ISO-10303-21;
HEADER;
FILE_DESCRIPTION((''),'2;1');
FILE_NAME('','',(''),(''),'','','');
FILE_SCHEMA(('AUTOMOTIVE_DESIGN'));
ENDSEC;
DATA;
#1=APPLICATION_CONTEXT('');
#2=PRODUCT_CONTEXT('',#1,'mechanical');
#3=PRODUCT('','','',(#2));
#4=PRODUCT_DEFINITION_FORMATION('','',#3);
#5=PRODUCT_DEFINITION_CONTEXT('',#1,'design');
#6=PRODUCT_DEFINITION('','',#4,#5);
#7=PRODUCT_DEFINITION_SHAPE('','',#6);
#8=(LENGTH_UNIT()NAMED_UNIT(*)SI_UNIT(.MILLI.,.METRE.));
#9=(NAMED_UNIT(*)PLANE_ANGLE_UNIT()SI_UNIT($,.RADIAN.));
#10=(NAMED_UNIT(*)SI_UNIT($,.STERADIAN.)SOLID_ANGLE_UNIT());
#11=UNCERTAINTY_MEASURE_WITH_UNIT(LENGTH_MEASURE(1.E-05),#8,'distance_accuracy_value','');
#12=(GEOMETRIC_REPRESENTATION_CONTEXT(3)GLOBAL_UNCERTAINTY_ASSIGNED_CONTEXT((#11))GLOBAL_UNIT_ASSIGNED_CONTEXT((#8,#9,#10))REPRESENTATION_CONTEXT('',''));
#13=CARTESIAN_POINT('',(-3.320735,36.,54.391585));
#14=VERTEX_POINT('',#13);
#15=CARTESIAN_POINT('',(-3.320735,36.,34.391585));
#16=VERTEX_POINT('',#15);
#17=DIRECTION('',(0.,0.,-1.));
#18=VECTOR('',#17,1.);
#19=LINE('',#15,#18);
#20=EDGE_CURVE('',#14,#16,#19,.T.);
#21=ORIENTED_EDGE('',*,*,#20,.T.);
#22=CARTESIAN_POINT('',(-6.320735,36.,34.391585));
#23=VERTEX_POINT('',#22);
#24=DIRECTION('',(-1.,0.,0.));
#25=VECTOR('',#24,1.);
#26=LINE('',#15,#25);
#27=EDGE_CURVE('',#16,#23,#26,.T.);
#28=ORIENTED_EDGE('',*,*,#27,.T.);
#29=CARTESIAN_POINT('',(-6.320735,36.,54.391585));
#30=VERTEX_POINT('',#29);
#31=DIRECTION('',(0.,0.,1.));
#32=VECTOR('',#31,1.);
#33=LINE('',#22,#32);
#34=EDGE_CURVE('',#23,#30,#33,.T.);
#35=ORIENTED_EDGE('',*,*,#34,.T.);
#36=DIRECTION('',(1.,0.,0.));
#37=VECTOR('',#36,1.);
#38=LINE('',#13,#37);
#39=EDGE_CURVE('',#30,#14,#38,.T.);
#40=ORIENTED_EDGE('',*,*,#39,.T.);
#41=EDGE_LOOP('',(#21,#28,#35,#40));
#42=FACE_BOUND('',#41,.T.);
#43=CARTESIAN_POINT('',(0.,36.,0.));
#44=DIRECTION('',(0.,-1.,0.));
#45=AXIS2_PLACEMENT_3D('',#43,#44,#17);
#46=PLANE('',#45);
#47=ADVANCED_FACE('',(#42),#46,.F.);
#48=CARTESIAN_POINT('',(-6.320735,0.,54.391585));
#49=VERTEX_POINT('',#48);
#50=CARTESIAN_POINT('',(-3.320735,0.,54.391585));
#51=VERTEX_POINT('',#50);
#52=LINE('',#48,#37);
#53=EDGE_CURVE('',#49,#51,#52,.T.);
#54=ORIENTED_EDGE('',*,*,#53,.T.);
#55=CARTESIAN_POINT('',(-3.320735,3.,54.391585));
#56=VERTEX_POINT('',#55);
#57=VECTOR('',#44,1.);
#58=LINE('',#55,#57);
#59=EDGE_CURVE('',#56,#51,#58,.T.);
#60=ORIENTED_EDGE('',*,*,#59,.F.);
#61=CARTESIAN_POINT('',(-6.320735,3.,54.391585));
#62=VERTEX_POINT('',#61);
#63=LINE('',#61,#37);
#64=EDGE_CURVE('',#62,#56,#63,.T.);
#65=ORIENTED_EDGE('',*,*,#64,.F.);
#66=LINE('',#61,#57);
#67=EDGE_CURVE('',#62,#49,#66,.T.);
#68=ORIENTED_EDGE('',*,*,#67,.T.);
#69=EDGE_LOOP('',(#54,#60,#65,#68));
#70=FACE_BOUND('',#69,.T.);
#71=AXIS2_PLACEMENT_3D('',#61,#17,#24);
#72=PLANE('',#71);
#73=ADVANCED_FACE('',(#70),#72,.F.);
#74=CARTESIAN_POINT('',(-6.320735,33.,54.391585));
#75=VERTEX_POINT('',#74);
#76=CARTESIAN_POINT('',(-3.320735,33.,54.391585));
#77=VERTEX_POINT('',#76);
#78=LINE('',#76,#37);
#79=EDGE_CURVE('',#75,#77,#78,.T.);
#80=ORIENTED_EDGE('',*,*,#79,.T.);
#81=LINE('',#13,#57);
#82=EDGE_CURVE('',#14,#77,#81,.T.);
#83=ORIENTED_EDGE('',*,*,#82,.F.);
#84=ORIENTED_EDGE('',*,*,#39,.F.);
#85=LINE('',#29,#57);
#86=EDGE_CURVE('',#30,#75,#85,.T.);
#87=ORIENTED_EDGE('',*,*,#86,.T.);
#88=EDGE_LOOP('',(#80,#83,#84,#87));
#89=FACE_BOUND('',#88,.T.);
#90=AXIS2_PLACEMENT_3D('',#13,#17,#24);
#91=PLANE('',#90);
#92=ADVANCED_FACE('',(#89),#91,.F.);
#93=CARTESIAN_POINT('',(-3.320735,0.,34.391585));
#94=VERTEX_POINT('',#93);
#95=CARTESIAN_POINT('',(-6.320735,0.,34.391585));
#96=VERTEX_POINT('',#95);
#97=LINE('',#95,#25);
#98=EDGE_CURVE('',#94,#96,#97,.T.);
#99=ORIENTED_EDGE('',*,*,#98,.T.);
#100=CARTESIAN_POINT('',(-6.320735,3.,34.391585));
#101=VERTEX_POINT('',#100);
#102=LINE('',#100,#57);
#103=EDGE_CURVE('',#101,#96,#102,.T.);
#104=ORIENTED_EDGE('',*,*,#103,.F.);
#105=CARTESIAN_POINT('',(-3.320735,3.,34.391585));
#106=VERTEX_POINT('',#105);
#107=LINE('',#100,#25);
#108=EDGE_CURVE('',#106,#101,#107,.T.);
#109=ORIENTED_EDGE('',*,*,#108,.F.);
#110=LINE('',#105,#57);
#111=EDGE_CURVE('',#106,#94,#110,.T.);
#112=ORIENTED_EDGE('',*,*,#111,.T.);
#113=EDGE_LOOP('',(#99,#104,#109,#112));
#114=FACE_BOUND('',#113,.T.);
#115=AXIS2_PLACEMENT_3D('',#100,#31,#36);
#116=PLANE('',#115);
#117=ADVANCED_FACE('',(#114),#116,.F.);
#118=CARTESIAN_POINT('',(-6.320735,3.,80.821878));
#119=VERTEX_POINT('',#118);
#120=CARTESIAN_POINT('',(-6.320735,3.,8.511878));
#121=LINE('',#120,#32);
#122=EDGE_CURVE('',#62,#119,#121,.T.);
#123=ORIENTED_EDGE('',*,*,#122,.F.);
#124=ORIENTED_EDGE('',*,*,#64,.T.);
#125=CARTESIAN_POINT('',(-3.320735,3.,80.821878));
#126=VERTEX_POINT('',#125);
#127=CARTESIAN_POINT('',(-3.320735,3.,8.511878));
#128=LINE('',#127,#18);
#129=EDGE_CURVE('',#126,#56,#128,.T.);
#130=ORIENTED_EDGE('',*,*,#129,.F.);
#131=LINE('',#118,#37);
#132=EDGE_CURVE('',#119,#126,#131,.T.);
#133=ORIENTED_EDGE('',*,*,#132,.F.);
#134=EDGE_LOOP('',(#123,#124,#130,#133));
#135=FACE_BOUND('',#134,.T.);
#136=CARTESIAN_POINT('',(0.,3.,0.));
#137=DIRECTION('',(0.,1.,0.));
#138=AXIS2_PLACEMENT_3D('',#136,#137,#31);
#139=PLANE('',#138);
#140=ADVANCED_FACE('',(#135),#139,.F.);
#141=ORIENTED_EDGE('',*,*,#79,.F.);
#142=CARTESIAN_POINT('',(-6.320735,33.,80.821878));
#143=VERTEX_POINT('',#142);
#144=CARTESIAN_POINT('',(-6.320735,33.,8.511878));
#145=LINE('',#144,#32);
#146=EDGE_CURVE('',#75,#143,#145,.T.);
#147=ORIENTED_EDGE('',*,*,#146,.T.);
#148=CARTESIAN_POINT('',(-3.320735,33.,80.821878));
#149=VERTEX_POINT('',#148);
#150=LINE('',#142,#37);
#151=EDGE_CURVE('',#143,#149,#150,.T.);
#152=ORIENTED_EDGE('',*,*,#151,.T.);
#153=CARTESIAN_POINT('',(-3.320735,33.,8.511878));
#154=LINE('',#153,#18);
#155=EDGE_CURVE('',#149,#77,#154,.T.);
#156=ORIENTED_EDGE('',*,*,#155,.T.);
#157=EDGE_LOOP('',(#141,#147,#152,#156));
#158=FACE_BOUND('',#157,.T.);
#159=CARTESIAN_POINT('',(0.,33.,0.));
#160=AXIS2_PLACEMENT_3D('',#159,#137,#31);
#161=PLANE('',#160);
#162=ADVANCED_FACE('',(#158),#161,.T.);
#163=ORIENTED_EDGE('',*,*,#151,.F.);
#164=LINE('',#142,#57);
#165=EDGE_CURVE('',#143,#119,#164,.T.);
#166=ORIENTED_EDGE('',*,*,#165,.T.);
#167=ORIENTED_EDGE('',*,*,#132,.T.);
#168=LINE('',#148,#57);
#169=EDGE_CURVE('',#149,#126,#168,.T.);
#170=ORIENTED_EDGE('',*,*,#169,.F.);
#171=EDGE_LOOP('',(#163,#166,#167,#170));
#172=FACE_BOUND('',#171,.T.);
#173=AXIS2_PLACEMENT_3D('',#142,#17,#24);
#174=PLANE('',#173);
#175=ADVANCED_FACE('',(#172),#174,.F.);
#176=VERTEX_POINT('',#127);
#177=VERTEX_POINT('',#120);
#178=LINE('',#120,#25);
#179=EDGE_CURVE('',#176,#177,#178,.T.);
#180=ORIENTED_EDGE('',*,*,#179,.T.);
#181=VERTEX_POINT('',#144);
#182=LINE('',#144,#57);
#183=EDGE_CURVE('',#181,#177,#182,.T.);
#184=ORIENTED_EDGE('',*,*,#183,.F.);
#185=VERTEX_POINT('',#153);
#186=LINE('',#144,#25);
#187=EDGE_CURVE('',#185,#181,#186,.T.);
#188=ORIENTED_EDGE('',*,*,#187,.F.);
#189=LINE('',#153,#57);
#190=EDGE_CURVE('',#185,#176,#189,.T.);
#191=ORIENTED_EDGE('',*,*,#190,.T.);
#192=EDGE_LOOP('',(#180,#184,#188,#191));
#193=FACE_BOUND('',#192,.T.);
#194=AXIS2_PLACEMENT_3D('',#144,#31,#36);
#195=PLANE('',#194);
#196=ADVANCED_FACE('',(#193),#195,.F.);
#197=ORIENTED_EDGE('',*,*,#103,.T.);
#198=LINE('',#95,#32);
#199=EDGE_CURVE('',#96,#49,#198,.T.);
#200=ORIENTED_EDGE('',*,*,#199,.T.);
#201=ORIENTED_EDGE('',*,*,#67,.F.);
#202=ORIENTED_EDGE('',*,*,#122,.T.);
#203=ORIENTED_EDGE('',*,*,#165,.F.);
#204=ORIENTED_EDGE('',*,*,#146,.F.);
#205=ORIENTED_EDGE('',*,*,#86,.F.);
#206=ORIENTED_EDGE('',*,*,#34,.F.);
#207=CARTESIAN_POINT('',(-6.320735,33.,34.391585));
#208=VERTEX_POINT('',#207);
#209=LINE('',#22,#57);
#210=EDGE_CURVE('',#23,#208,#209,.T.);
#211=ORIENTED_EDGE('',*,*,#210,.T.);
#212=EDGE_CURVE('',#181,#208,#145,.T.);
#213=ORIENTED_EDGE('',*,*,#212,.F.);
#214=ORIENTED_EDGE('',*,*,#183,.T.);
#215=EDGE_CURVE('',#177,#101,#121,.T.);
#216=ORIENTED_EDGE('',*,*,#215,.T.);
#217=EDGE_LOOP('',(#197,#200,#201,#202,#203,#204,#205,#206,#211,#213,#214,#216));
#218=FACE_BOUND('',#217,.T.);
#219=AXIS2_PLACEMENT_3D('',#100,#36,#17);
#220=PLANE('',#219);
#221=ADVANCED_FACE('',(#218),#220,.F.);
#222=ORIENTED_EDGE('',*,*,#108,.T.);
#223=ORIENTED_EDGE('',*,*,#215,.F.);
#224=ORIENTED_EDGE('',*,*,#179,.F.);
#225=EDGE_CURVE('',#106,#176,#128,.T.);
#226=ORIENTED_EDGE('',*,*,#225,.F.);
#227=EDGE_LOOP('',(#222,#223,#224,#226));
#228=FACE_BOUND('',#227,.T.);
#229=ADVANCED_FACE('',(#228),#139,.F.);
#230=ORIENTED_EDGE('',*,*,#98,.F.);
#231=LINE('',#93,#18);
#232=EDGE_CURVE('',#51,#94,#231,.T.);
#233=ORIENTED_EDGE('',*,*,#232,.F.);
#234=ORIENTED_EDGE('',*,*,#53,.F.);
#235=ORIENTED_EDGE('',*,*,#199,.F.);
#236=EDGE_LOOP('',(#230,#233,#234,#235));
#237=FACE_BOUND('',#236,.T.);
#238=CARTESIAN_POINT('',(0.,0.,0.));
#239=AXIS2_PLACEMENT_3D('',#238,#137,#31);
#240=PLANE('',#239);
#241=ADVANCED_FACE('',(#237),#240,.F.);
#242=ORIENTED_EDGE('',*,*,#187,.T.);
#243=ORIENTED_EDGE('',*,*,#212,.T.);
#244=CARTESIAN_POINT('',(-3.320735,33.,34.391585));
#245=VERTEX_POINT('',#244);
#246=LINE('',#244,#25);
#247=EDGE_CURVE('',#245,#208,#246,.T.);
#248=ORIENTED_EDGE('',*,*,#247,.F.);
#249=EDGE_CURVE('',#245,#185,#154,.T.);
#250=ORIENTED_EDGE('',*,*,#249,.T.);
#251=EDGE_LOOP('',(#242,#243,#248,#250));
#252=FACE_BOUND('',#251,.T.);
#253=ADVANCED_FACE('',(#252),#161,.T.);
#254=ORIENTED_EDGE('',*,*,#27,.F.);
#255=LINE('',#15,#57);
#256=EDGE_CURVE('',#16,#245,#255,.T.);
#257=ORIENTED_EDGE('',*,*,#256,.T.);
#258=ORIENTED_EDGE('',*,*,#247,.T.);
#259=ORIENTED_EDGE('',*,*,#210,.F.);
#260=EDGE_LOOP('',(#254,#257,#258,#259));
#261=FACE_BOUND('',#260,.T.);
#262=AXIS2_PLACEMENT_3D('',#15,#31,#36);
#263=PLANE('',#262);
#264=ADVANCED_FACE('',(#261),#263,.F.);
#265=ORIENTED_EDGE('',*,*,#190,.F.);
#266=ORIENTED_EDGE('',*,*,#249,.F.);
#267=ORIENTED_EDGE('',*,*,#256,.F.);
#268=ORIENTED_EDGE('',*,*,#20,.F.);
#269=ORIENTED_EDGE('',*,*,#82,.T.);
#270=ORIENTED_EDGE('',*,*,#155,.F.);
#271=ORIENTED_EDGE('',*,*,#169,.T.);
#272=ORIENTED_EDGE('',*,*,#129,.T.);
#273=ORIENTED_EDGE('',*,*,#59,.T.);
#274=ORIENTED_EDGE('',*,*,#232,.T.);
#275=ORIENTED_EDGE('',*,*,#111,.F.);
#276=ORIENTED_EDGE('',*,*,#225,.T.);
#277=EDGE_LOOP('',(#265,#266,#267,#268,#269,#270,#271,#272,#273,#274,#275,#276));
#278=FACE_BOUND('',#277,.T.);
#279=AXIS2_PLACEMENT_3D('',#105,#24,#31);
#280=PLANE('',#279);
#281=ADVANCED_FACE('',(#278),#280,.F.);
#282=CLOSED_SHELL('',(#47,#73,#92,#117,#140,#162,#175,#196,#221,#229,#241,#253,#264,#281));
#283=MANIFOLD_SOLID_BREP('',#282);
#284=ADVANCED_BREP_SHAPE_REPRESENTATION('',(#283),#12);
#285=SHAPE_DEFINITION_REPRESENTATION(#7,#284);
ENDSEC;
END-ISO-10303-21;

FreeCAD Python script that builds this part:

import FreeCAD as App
import Part
import Sketcher


def add_polygon(sketch, points):
    """Adds a closed chain of lines whose ends are joined by coincident constraints."""
    first, n = sketch.GeometryCount, len(points)
    for a, b in zip(points, points[1:] + points[:1]):
        sketch.addGeometry(Part.LineSegment(App.Vector(*a, 0), App.Vector(*b, 0)), False)
    for i in range(n):
        sketch.addConstraint(Sketcher.Constraint("Coincident", first + i, 2, first + (i + 1) % n, 1))

doc = App.newDocument("Part")
body = doc.addObject("PartDesign::Body", "Body")

# Sketch on XZ plane
sketch1 = body.newObject("Sketcher::SketchObject", "Sketch")
sketch1.AttachmentSupport = (doc.getObject("XZ_Plane"), [""])
sketch1.MapMode = "FlatFace"
add_polygon(sketch1, [(-6.3, 34.4), (-6.3, 54.4), (-3.3, 54.4), (-3.3, 34.4)])  # lines 0-3
sketch1.addConstraint([
    Sketcher.Constraint("Vertical", 0),
    Sketcher.Constraint("Horizontal", 1),
    Sketcher.Constraint("Vertical", 2),
    Sketcher.Constraint("Horizontal", 3),
    Sketcher.Constraint("DistanceX", 1, 1, 1, 2, 3.0),
    Sketcher.Constraint("DistanceY", 0, 1, 0, 2, 20.0),
    Sketcher.Constraint("DistanceX", 0, 2, -1, 1, 6.320735),
    Sketcher.Constraint("DistanceY", -1, 1, 0, 2, 54.391585),
])
pad1 = body.newObject("PartDesign::Pad", "Pad")
pad1.Profile = sketch1
pad1.Length = 3
pad1.Reversed = True

# Sketch on XZ plane
sketch2 = body.newObject("Sketcher::SketchObject", "Sketch001")
sketch2.AttachmentSupport = (doc.getObject("XZ_Plane"), [""])
sketch2.MapMode = "FlatFace"
sketch2.AttachmentOffset = App.Placement(App.Vector(0, 0, -3), App.Rotation())
add_polygon(sketch2, [(-6.3, 8.5), (-6.3, 80.8), (-3.3, 80.8), (-3.3, 8.5)])  # lines 0-3
sketch2.addConstraint([
    Sketcher.Constraint("Vertical", 0),
    Sketcher.Constraint("Horizontal", 1),
    Sketcher.Constraint("Vertical", 2),
    Sketcher.Constraint("Horizontal", 3),
    Sketcher.Constraint("DistanceX", 1, 1, 1, 2, 3.0),
    Sketcher.Constraint("DistanceY", 0, 1, 0, 2, 72.31),
    Sketcher.Constraint("DistanceY", -1, 1, 0, 2, 80.821878),
    Sketcher.Constraint("DistanceX", 0, 2, -1, 1, 6.320735),
])
pad2 = body.newObject("PartDesign::Pad", "Pad001")
pad2.Profile = sketch2
pad2.Length = 30
pad2.Reversed = True

# Sketch on XZ plane
sketch3 = body.newObject("Sketcher::SketchObject", "Sketch002")
sketch3.AttachmentSupport = (doc.getObject("XZ_Plane"), [""])
sketch3.MapMode = "FlatFace"
sketch3.AttachmentOffset = App.Placement(App.Vector(0, 0, -33), App.Rotation())
add_polygon(sketch3, [(-6.3, 34.4), (-6.3, 54.4), (-3.3, 54.4), (-3.3, 34.4)])  # lines 0-3
sketch3.addConstraint([
    Sketcher.Constraint("Vertical", 0),
    Sketcher.Constraint("Horizontal", 1),
    Sketcher.Constraint("Vertical", 2),
    Sketcher.Constraint("Horizontal", 3),
    Sketcher.Constraint("DistanceX", 1, 1, 1, 2, 3.0),
    Sketcher.Constraint("DistanceY", 0, 1, 0, 2, 20.0),
    Sketcher.Constraint("DistanceX", 0, 2, -1, 1, 6.320735),
    Sketcher.Constraint("DistanceY", -1, 1, 0, 2, 54.391585),
])
pad3 = body.newObject("PartDesign::Pad", "Pad002")
pad3.Profile = sketch3
pad3.Length = 3
pad3.Reversed = True

doc.recompute()
